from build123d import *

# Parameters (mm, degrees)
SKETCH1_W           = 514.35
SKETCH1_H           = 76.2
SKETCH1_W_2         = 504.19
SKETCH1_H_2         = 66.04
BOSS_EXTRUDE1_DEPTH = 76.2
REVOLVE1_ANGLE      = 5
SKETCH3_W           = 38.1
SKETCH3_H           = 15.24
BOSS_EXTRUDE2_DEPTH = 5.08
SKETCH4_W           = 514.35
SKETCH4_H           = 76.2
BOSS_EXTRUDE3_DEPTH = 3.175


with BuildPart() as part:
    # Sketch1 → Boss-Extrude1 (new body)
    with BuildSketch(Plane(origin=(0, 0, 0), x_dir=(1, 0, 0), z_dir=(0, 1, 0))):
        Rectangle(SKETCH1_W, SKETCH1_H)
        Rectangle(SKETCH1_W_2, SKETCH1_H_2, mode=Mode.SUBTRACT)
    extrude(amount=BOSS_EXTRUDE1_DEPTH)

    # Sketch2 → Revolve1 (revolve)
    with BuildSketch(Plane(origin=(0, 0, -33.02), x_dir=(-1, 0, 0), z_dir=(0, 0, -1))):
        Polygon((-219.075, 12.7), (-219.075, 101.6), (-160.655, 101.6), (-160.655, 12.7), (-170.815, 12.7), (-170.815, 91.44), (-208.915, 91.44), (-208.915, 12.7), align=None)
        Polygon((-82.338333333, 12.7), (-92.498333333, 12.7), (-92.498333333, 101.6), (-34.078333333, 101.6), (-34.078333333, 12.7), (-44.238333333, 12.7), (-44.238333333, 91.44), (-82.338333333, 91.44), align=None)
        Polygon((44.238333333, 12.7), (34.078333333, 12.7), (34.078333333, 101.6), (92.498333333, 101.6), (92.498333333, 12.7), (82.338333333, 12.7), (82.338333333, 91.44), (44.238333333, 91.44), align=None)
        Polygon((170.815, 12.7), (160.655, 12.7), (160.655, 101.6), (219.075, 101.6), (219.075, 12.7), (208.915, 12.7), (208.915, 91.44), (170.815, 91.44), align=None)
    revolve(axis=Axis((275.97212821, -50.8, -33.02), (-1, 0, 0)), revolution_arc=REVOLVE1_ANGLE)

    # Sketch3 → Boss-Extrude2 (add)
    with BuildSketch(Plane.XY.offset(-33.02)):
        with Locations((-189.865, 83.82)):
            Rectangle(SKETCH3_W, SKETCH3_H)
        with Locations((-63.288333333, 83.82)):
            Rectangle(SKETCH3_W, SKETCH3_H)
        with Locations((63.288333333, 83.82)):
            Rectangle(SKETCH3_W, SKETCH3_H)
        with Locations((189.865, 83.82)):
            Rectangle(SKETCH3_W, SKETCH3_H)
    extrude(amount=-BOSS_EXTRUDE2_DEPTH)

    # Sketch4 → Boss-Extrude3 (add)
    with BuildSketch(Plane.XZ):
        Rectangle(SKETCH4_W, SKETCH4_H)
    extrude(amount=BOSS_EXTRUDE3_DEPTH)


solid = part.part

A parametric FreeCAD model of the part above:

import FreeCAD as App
import Part
import Sketcher
from FreeCAD import Vector
Q = App.Units.Quantity


def add_polygon(sketch, points):
    """Adds a closed chain of lines whose ends are joined by coincident constraints."""
    first, n = sketch.GeometryCount, len(points)
    for a, b in zip(points, points[1:] + points[:1]):
        sketch.addGeometry(Part.LineSegment(App.Vector(*a, 0), App.Vector(*b, 0)), False)
    for i in range(n):
        sketch.addConstraint(Sketcher.Constraint("Coincident", first + i, 2, first + (i + 1) % n, 1))

doc = App.newDocument("Part")
body = doc.addObject("PartDesign::Body", "Body")

# Sketch on XZ plane
sketch1 = doc.addObject("Sketcher::SketchObject", "Sketch")
body.addObject(sketch1)
sketch1.AttachmentSupport = (doc.XZ_Plane, [""])
sketch1.MapMode = "FlatFace"
add_polygon(sketch1, [(-257, -38), (-257, 38), (257, 38), (257, -38)])  # lines 0-3
add_polygon(sketch1, [(252, 33), (-252, 33), (-252, -33), (252, -33)])  # lines 4-7
sketch1.addConstraint([
    Sketcher.Constraint("Vertical", 0),
    Sketcher.Constraint("Horizontal", 1),
    Sketcher.Constraint("Vertical", 2),
    Sketcher.Constraint("Horizontal", 3),
    Sketcher.Constraint("Horizontal", 4),
    Sketcher.Constraint("Vertical", 5),
    Sketcher.Constraint("Horizontal", 6),
    Sketcher.Constraint("Vertical", 7),
    Sketcher.Constraint("Symmetric", 0, 2, 2, 2, -1, 1),
    Sketcher.Constraint("Symmetric", 4, 2, 6, 2, -1, 1),
    Sketcher.Constraint("DistanceY", 0, 1, 0, 2, Q("3 in")),
    Sketcher.Constraint("DistanceY", 5, 2, 5, 1, Q("2.6 in")),
    Sketcher.Constraint("DistanceX", 1, 1, 1, 2, Q("20.25 in")),
    Sketcher.Constraint("DistanceX", 4, 2, 4, 1, Q("19.85 in")),
])
pad1 = doc.addObject("PartDesign::Pad", "Pad")
body.addObject(pad1)
pad1.Profile = sketch1
pad1.Length = Q("3 in")
pad1.Reversed = True

# Sketch on XY plane
sketch2 = doc.addObject("Sketcher::SketchObject", "Sketch001")
body.addObject(sketch2)
sketch2.AttachmentSupport = (doc.XY_Plane, [""])
sketch2.MapMode = "FlatFace"
sketch2.AttachmentOffset = App.Placement(Vector(0, 0, -1.3 * 25.4), App.Rotation())
add_polygon(sketch2, [(219, 102), (219, 13), (209, 13), (209, 91), (171, 91), (171, 13), (161, 13), (161, 102)])  # lines 0-7
add_polygon(sketch2, [(92, 13), (82, 13), (82, 91), (44, 91), (44, 13), (34, 13), (34, 102), (92, 102)])  # lines 8-15
add_polygon(sketch2, [(-34, 13), (-44, 13), (-44, 91), (-82, 91), (-82, 13), (-92, 13), (-92, 102), (-34, 102)])  # lines 16-23
add_polygon(sketch2, [(-161, 13), (-171, 13), (-171, 91), (-209, 91), (-209, 13), (-219, 13), (-219, 102), (-161, 102)])  # lines 24-31
sketch2.addGeometry(Part.LineSegment(Vector(219, -51, 0), Vector(-219, -51, 0)), True)  # axis
sketch2.addConstraint([
    Sketcher.Constraint("Vertical", 0),
    Sketcher.Constraint("Horizontal", 1),
    Sketcher.Constraint("Vertical", 2),
    Sketcher.Constraint("Horizontal", 3),
    Sketcher.Constraint("Vertical", 4),
    Sketcher.Constraint("Horizontal", 5),
    Sketcher.Constraint("Vertical", 6),
    Sketcher.Constraint("Horizontal", 7),
    Sketcher.Constraint("Horizontal", 8),
    Sketcher.Constraint("Vertical", 9),
    Sketcher.Constraint("Horizontal", 10),
    Sketcher.Constraint("Vertical", 11),
    Sketcher.Constraint("Horizontal", 12),
    Sketcher.Constraint("Vertical", 13),
    Sketcher.Constraint("Horizontal", 14),
    Sketcher.Constraint("Vertical", 15),
    Sketcher.Constraint("Horizontal", 16),
    Sketcher.Constraint("Vertical", 17),
    Sketcher.Constraint("Horizontal", 18),
    Sketcher.Constraint("Vertical", 19),
    Sketcher.Constraint("Horizontal", 20),
    Sketcher.Constraint("Vertical", 21),
    Sketcher.Constraint("Horizontal", 22),
    Sketcher.Constraint("Vertical", 23),
    Sketcher.Constraint("Horizontal", 24),
    Sketcher.Constraint("Vertical", 25),
    Sketcher.Constraint("Horizontal", 26),
    Sketcher.Constraint("Vertical", 27),
    Sketcher.Constraint("Horizontal", 28),
    Sketcher.Constraint("Vertical", 29),
    Sketcher.Constraint("Horizontal", 30),
    Sketcher.Constraint("Vertical", 31),
    Sketcher.Constraint("Horizontal", 32),
    Sketcher.Constraint("Symmetric", 11, 2, 16, 2, -2),
    Sketcher.Constraint("Symmetric", 9, 2, 18, 2, -2),
    Sketcher.Constraint("Symmetric", 15, 2, 20, 2, -2),
    Sketcher.Constraint("Symmetric", 13, 2, 22, 2, -2),
    Sketcher.Constraint("Symmetric", 4, 2, 24, 2, -2),
    Sketcher.Constraint("Symmetric", 2, 2, 26, 2, -2),
    Sketcher.Constraint("Symmetric", 0, 2, 28, 2, -2),
    Sketcher.Constraint("Symmetric", 6, 2, 30, 2, -2),
    Sketcher.Constraint("Horizontal", 1, 2, 4, 2),
    Sketcher.Constraint("Horizontal", 5, 2, 8, 2),
    Sketcher.Constraint("Horizontal", 3, 2, 9, 2),
    Sketcher.Constraint("Horizontal", 8, 2, 11, 2),
    Sketcher.Constraint("Horizontal", 7, 2, 13, 2),
    Sketcher.Constraint("Vertical", 7, 2, 32, 1),
    Sketcher.Constraint("Vertical", 29, 2, 32, 2),
    Sketcher.Constraint("Equal", 1, 5),
    Sketcher.Constraint("Equal", 5, 8),
    Sketcher.Constraint("Equal", 3, 10),
    Sketcher.Constraint("Equal", 8, 12),
    Sketcher.Constraint("DistanceX", 1, 2, 1, 1, Q("0.4 in")),
    Sketcher.Constraint("DistanceX", 3, 2, 3, 1, Q("1.5 in")),
    Sketcher.Constraint("DistanceY", 0, 2, 0, 1, Q("3.5 in")),
    Sketcher.Constraint("DistanceY", 2, 1, 2, 2, Q("3.1 in")),
    Sketcher.Constraint("DistanceY", -1, 1, 6, 2, Q("4 in")),
    Sketcher.Constraint("DistanceY", 32, 1, -1, 1, Q("2 in")),
    Sketcher.Constraint("DistanceX", 32, 2, 32, 1, Q("17.25 in")),
    Sketcher.Constraint("DistanceX", -1, 1, 8, 2, Q("82.338333 mm")),
])
revolution = doc.addObject("PartDesign::Revolution", "Revolution")
body.addObject(revolution)
revolution.Profile = sketch2
revolution.ReferenceAxis = (sketch2, ["Axis0"])
revolution.Angle = 5

# Sketch on XY plane
sketch3 = doc.addObject("Sketcher::SketchObject", "Sketch002")
body.addObject(sketch3)
sketch3.AttachmentSupport = (doc.XY_Plane, [""])
sketch3.MapMode = "FlatFace"
sketch3.AttachmentOffset = App.Placement(Vector(0, 0, -1.3 * 25.4), App.Rotation())
add_polygon(sketch3, [(-209, 91), (-209, 76), (-171, 76), (-171, 91)])  # lines 0-3
add_polygon(sketch3, [(-82, 91), (-82, 76), (-44, 76), (-44, 91)])  # lines 4-7
add_polygon(sketch3, [(44, 91), (44, 76), (82, 76), (82, 91)])  # lines 8-11
add_polygon(sketch3, [(171, 91), (171, 76), (209, 76), (209, 91)])  # lines 12-15
sketch3.addConstraint([
    Sketcher.Constraint("Vertical", 0),
    Sketcher.Constraint("Horizontal", 1),
    Sketcher.Constraint("Vertical", 2),
    Sketcher.Constraint("Horizontal", 3),
    Sketcher.Constraint("Vertical", 4),
    Sketcher.Constraint("Horizontal", 5),
    Sketcher.Constraint("Vertical", 6),
    Sketcher.Constraint("Horizontal", 7),
    Sketcher.Constraint("Vertical", 8),
    Sketcher.Constraint("Horizontal", 9),
    Sketcher.Constraint("Vertical", 10),
    Sketcher.Constraint("Horizontal", 11),
    Sketcher.Constraint("Vertical", 12),
    Sketcher.Constraint("Horizontal", 13),
    Sketcher.Constraint("Vertical", 14),
    Sketcher.Constraint("Horizontal", 15),
    Sketcher.Constraint("Symmetric", 5, 2, 8, 2, -2),
    Sketcher.Constraint("Symmetric", 7, 2, 10, 2, -2),
    Sketcher.Constraint("Symmetric", 1, 2, 12, 2, -2),
    Sketcher.Constraint("Symmetric", 3, 2, 14, 2, -2),
    Sketcher.Constraint("Horizontal", 1, 2, 4, 2),
    Sketcher.Constraint("Horizontal", 3, 2, 6, 2),
    Sketcher.Constraint("Equal", 3, 5),
    Sketcher.Constraint("DistanceX", 1, 1, 1, 2, Q("1.5 in")),
    Sketcher.Constraint("DistanceY", 0, 2, 0, 1, Q("0.6 in")),
    Sketcher.Constraint("DistanceY", -1, 1, 0, 2, Q("3 in")),
    Sketcher.Constraint("DistanceX", 0, 2, -1, 1, Q("8.225 in")),
    Sketcher.Constraint("DistanceX", 4, 2, -1, 1, Q("82.338333 mm")),
])
pad2 = doc.addObject("PartDesign::Pad", "Pad001")
body.addObject(pad2)
pad2.Profile = sketch3
pad2.Length = Q("0.2 in")
pad2.Reversed = True

# Sketch on XZ plane
sketch4 = doc.addObject("Sketcher::SketchObject", "Sketch003")
body.addObject(sketch4)
sketch4.AttachmentSupport = (doc.XZ_Plane, [""])
sketch4.MapMode = "FlatFace"
add_polygon(sketch4, [(-257, 38), (-257, -38), (257, -38), (257, 38)])  # lines 0-3
sketch4.addConstraint([
    Sketcher.Constraint("Vertical", 0),
    Sketcher.Constraint("Horizontal", 1),
    Sketcher.Constraint("Vertical", 2),
    Sketcher.Constraint("Horizontal", 3),
    Sketcher.Constraint("Symmetric", 0, 2, 2, 2, -1, 1),
    Sketcher.Constraint("DistanceY", 0, 2, 0, 1, Q("3 in")),
    Sketcher.Constraint("DistanceX", 1, 1, 1, 2, Q("20.25 in")),
])
pad3 = doc.addObject("PartDesign::Pad", "Pad002")
body.addObject(pad3)
pad3.Profile = sketch4
pad3.Length = Q("0.125 in")

doc.recompute()
